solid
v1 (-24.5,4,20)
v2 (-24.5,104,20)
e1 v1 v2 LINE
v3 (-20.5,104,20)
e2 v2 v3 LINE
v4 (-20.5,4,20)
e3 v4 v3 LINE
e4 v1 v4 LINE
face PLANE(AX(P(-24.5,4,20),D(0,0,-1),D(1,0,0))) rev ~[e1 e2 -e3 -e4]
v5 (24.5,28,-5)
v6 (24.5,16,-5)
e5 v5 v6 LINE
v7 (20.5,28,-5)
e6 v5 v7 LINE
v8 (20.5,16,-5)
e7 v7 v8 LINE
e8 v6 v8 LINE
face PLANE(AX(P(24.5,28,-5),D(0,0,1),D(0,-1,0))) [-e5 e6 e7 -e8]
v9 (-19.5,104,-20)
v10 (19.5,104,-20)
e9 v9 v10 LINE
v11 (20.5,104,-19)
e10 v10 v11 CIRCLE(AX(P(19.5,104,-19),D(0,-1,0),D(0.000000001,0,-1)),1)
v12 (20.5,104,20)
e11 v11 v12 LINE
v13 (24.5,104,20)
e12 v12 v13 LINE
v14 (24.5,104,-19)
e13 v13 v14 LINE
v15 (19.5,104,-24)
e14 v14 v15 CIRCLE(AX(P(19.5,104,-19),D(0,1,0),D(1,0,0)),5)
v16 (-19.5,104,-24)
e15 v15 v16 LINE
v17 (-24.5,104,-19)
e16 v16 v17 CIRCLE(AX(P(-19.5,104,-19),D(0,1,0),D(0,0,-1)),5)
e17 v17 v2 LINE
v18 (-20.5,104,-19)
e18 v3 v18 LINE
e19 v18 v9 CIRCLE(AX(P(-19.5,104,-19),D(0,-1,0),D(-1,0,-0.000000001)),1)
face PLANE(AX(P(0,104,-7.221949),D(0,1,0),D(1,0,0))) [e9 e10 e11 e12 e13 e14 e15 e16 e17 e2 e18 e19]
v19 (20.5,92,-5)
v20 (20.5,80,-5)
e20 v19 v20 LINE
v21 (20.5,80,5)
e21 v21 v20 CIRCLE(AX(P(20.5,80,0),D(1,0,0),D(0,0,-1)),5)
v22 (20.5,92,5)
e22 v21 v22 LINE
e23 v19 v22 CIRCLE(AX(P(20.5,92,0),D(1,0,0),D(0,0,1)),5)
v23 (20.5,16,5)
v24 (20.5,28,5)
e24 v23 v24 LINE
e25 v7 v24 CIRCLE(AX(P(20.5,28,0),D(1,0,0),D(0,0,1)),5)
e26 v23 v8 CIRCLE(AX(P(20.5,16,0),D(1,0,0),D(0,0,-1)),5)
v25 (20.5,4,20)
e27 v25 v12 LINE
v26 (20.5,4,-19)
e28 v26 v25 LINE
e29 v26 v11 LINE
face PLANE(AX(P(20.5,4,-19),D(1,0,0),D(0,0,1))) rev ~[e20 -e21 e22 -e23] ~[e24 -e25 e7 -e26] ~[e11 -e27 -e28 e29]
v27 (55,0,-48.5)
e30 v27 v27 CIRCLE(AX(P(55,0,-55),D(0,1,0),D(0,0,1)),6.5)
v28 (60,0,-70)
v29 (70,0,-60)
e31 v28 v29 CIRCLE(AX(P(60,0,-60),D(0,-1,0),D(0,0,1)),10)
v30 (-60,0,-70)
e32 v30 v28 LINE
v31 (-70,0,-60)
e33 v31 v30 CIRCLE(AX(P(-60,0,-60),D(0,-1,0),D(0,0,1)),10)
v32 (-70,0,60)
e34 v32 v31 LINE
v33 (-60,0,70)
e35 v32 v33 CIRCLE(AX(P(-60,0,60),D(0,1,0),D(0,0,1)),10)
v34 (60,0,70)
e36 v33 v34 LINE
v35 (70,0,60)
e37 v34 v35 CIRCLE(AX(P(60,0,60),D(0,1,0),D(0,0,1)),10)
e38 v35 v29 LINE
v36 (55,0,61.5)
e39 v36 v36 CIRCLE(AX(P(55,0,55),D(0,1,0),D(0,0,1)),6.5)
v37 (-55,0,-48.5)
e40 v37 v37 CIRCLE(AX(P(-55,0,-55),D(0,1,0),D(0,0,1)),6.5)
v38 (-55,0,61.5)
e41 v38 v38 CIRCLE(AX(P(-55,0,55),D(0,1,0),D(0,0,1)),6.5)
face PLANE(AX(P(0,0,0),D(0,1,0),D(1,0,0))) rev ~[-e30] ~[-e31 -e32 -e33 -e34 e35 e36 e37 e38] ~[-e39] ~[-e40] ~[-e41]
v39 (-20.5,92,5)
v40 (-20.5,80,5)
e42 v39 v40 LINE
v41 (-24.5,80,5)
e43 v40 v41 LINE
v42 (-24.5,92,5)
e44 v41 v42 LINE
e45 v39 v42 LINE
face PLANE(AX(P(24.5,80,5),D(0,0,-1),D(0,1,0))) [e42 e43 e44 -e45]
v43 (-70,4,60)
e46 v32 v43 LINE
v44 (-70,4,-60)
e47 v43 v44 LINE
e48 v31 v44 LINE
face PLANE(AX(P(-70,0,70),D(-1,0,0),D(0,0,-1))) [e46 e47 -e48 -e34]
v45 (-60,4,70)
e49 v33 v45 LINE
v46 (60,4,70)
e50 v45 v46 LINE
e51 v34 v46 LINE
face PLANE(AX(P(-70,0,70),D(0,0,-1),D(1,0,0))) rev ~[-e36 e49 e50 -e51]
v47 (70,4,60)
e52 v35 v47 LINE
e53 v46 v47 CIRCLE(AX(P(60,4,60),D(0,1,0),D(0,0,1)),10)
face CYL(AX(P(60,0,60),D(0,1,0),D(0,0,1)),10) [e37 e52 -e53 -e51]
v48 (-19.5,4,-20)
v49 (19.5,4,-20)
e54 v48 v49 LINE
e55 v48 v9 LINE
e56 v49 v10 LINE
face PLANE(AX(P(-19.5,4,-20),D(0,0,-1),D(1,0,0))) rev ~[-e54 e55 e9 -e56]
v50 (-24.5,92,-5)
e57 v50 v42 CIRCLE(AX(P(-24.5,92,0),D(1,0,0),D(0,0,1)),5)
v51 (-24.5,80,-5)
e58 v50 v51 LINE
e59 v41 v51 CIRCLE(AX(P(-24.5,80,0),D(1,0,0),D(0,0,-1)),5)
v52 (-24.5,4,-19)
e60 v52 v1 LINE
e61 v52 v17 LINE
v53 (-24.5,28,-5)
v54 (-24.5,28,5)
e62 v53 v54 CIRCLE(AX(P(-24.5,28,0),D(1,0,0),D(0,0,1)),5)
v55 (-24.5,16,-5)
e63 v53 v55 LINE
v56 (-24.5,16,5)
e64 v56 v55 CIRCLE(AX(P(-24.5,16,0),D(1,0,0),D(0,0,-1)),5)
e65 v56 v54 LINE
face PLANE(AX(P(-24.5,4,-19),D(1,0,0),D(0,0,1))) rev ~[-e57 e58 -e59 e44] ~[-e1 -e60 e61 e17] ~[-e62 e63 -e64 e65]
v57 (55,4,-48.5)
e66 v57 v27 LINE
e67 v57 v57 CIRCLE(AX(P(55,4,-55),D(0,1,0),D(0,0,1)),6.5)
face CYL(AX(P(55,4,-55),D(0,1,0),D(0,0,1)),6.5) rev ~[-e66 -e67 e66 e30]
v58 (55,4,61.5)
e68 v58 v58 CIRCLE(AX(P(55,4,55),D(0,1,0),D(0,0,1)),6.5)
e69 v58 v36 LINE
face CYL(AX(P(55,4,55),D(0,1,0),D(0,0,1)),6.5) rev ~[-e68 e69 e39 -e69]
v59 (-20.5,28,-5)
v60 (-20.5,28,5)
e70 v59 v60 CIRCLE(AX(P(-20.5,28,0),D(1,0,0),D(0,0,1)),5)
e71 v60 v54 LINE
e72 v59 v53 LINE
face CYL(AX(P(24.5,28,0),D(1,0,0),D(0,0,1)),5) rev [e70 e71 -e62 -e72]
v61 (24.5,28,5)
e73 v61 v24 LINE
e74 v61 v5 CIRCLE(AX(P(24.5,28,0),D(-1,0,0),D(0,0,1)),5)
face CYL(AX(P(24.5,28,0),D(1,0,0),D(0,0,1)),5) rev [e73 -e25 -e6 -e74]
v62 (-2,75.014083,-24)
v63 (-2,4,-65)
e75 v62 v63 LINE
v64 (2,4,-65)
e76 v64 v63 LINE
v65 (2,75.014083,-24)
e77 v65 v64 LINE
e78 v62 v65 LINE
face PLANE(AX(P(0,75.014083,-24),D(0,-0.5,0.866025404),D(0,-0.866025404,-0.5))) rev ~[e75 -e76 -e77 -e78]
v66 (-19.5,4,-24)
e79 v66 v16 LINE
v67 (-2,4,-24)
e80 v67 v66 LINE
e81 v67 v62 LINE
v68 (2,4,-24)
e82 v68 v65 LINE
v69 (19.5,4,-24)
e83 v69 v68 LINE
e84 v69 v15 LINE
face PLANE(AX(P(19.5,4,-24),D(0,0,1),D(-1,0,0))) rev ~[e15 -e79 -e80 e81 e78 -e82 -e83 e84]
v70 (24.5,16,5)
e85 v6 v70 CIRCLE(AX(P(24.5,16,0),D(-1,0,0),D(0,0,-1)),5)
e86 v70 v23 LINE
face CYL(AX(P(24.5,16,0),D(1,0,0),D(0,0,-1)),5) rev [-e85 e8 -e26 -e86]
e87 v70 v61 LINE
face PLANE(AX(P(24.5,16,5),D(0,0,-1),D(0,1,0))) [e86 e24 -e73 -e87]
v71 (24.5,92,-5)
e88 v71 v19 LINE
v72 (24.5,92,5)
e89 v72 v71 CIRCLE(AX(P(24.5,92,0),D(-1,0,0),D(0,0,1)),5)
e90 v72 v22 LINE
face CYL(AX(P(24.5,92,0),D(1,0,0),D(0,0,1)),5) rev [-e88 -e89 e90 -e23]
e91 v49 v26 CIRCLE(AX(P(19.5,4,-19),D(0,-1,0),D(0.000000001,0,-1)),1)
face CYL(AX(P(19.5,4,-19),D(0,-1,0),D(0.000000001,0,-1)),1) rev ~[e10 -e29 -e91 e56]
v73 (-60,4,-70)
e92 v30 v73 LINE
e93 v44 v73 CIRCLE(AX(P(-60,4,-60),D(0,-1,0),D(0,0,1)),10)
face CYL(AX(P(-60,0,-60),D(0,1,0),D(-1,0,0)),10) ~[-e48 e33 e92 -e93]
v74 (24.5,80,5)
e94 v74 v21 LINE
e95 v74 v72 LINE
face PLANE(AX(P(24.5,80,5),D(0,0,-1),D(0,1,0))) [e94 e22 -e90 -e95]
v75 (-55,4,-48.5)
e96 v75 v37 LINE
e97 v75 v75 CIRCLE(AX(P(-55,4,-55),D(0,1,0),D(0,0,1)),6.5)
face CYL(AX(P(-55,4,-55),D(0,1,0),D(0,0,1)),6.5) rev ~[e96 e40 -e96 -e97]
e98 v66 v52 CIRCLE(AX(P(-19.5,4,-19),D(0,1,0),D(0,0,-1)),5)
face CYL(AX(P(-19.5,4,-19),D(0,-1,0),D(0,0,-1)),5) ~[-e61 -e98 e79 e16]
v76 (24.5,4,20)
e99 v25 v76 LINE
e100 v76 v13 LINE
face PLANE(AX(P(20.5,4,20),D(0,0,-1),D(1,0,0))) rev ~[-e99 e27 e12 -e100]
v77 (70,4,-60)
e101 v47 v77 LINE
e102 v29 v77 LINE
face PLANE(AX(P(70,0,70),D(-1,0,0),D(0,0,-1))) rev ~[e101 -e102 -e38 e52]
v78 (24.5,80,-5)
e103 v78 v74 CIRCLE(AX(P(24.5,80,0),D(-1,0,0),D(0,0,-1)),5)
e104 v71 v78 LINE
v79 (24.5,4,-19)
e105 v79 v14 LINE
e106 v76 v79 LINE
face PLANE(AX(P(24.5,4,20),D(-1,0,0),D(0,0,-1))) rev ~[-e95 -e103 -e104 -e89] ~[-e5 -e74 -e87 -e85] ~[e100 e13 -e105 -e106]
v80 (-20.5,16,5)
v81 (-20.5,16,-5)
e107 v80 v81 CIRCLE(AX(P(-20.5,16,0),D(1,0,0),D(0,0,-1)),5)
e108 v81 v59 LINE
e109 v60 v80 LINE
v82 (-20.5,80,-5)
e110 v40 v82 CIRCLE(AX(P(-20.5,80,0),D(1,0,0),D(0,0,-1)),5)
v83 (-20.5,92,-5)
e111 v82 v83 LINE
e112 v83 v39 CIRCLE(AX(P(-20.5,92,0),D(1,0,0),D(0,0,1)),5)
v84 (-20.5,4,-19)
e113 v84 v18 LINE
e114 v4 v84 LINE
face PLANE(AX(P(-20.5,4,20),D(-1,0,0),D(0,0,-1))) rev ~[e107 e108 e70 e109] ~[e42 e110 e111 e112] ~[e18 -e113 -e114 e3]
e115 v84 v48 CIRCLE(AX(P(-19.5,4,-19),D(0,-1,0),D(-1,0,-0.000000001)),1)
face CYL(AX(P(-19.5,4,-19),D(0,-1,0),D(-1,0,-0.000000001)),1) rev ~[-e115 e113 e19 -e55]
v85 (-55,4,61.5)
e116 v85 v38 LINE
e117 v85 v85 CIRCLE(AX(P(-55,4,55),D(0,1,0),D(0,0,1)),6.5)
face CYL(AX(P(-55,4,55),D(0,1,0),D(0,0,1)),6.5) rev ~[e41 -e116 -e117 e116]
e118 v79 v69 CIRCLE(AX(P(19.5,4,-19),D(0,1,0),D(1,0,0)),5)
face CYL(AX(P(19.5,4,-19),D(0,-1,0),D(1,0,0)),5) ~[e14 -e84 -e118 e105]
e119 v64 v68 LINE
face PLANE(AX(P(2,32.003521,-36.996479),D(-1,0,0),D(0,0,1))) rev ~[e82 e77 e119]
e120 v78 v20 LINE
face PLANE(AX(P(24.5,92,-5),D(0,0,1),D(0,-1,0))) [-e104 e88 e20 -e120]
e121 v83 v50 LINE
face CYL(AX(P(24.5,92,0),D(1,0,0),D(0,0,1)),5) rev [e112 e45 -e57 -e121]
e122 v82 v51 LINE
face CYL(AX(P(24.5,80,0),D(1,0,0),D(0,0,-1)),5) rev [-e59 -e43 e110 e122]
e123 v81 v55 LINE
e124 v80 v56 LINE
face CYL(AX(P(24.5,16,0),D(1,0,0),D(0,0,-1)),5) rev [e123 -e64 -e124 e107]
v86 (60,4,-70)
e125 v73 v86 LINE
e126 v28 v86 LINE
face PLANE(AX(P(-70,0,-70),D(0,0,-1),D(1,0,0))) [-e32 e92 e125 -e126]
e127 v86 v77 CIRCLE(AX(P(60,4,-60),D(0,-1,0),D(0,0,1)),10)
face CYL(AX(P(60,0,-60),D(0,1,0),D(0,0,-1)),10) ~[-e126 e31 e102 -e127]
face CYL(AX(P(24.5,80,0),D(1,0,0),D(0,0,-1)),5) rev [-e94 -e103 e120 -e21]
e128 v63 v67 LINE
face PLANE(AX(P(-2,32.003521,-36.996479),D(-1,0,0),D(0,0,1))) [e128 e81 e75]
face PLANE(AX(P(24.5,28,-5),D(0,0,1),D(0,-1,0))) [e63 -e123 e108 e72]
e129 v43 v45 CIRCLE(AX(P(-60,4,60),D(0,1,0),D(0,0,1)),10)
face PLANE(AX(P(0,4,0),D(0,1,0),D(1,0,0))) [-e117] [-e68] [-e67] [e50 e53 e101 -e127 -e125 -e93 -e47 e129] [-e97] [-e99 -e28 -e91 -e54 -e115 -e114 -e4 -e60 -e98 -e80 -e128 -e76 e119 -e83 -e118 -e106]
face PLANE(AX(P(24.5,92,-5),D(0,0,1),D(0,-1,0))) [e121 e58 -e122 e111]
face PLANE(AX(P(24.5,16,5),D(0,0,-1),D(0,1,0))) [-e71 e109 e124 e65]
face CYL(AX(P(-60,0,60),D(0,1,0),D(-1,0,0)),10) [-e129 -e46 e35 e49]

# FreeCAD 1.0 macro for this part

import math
import FreeCAD as App
import Part
import Sketcher

V = App.Vector
Q = App.Units.Quantity


def edges_at(feature, points):
    """Names of the edges that pass closest to the given points."""
    edges = feature.Shape.Edges
    near = lambda p: min(range(len(edges)), key=lambda i: edges[i].distToShape(Part.Vertex(*p))[0])
    return sorted({f"Edge{near(p) + 1}" for p in points})

doc = App.newDocument("Part")
body = doc.addObject("PartDesign::Body", "Body")

# Sketch on XZ plane
sketch1 = body.newObject("Sketcher::SketchObject", "Sketch")
sketch1.AttachmentSupport = (doc.getObject("XZ_Plane"), [""])
sketch1.MapMode = "FlatFace"
sketch1.addGeometry(Part.LineSegment(V(-70, -70, 0), V(-70, 70, 0)), False)
sketch1.addGeometry(Part.LineSegment(V(-70, 70, 0), V(70, 70, 0)), False)
sketch1.addGeometry(Part.LineSegment(V(70, 70, 0), V(70, -70, 0)), False)
sketch1.addGeometry(Part.LineSegment(V(70, -70, 0), V(-70, -70, 0)), False)
sketch1.addConstraint(Sketcher.Constraint("Coincident", 0, 2, 1, 1))
sketch1.addConstraint(Sketcher.Constraint("Coincident", 1, 2, 2, 1))
sketch1.addConstraint(Sketcher.Constraint("Coincident", 2, 2, 3, 1))
sketch1.addConstraint(Sketcher.Constraint("Coincident", 3, 2, 0, 1))
sketch1.addConstraint(Sketcher.Constraint("Vertical", 0))
sketch1.addConstraint(Sketcher.Constraint("Horizontal", 1))
sketch1.addConstraint(Sketcher.Constraint("Vertical", 2))
sketch1.addConstraint(Sketcher.Constraint("Horizontal", 3))
sketch1.addConstraint(Sketcher.Constraint("Symmetric", 0, 2, 2, 2, -1, 1))
sketch1.addConstraint(Sketcher.Constraint("Equal", 3, 0))
sketch1.addConstraint(Sketcher.Constraint("DistanceX", 1, 1, 1, 2, Q("140 mm")))
pad1 = body.newObject("PartDesign::Pad", "Pad")
pad1.Profile = sketch1
pad1.Length = 4
pad1.Reversed = True

# Sketch on XZ plane
sketch2 = body.newObject("Sketcher::SketchObject", "Sketch001")
sketch2.AttachmentSupport = (doc.getObject("XZ_Plane"), [""])
sketch2.MapMode = "FlatFace"
sketch2.AttachmentOffset = App.Placement(V(0, 0, -4), App.Rotation())
sketch2.addGeometry(Part.LineSegment(V(-20.5, 20, 0), V(-20.5, -19, 0)), False)
sketch2.addGeometry(Part.ArcOfCircle(Part.Circle(V(-19.5, -19, 0), V(0, 0, 1), 1), math.radians(-180), math.radians(-90)), False)
sketch2.addGeometry(Part.LineSegment(V(-19.5, -20, 0), V(19.5, -20, 0)), False)
sketch2.addGeometry(Part.ArcOfCircle(Part.Circle(V(19.5, -19, 0), V(0, 0, 1), 1), math.radians(-90), math.radians(0)), False)
sketch2.addGeometry(Part.LineSegment(V(20.5, -19, 0), V(20.5, 20, 0)), False)
sketch2.addGeometry(Part.LineSegment(V(20.5, 20, 0), V(24.5, 20, 0)), False)
sketch2.addGeometry(Part.LineSegment(V(24.5, 20, 0), V(24.5, -19, 0)), False)
sketch2.addGeometry(Part.ArcOfCircle(Part.Circle(V(19.5, -19, 0), V(0, 0, 1), 5), math.radians(-90), math.radians(0)), False)
sketch2.addGeometry(Part.LineSegment(V(19.5, -24, 0), V(-19.5, -24, 0)), False)
sketch2.addGeometry(Part.ArcOfCircle(Part.Circle(V(-19.5, -19, 0), V(0, 0, 1), 5), math.radians(180), math.radians(270)), False)
sketch2.addGeometry(Part.LineSegment(V(-24.5, -19, 0), V(-24.5, 20, 0)), False)
sketch2.addGeometry(Part.LineSegment(V(-24.5, 20, 0), V(-20.5, 20, 0)), False)
sketch2.addConstraint(Sketcher.Constraint("Tangent", 0, 2, 1, 1))
sketch2.addConstraint(Sketcher.Constraint("Tangent", 1, 2, 2, 1))
sketch2.addConstraint(Sketcher.Constraint("Tangent", 2, 2, 3, 1))
sketch2.addConstraint(Sketcher.Constraint("Tangent", 3, 2, 4, 1))
sketch2.addConstraint(Sketcher.Constraint("Coincident", 4, 2, 5, 1))
sketch2.addConstraint(Sketcher.Constraint("Coincident", 5, 2, 6, 1))
sketch2.addConstraint(Sketcher.Constraint("Tangent", 6, 2, 7, 2))
sketch2.addConstraint(Sketcher.Constraint("Tangent", 7, 1, 8, 1))
sketch2.addConstraint(Sketcher.Constraint("Tangent", 8, 2, 9, 2))
sketch2.addConstraint(Sketcher.Constraint("Tangent", 9, 1, 10, 1))
sketch2.addConstraint(Sketcher.Constraint("Coincident", 10, 2, 11, 1))
sketch2.addConstraint(Sketcher.Constraint("Coincident", 11, 2, 0, 1))
sketch2.addConstraint(Sketcher.Constraint("Vertical", 0))
sketch2.addConstraint(Sketcher.Constraint("Horizontal", 2))
sketch2.addConstraint(Sketcher.Constraint("Vertical", 4))
sketch2.addConstraint(Sketcher.Constraint("Horizontal", 5))
sketch2.addConstraint(Sketcher.Constraint("Vertical", 6))
sketch2.addConstraint(Sketcher.Constraint("Horizontal", 8))
sketch2.addConstraint(Sketcher.Constraint("Vertical", 10))
sketch2.addConstraint(Sketcher.Constraint("Horizontal", 11))
sketch2.addConstraint(Sketcher.Constraint("Coincident", 7, 3, 3, 3))
sketch2.addConstraint(Sketcher.Constraint("Coincident", 9, 3, 1, 3))
sketch2.addConstraint(Sketcher.Constraint("Equal", 1, 3))
sketch2.addConstraint(Sketcher.Constraint("Symmetric", 5, 2, 10, 2, -2))
sketch2.addConstraint(Sketcher.Constraint("Equal", 8, 0))
sketch2.addConstraint(Sketcher.Constraint("Radius", 1, Q("1 mm")))
sketch2.addConstraint(Sketcher.Constraint("Radius", 7, Q("5 mm")))
sketch2.addConstraint(Sketcher.Constraint("DistanceX", 2, 1, 2, 2, Q("39 mm")))
sketch2.addConstraint(Sketcher.Constraint("DistanceY", 1, 3, -1, 1, Q("19 mm")))
pad2 = body.newObject("PartDesign::Pad", "Pad001")
pad2.Profile = sketch2
pad2.Length = 100
pad2.Reversed = True

# Sketch on YZ plane
sketch3 = body.newObject("Sketcher::SketchObject", "Sketch002")
sketch3.AttachmentSupport = (doc.getObject("YZ_Plane"), [""])
sketch3.MapMode = "FlatFace"
sketch3.addGeometry(Part.LineSegment(V(4, -65, 0), V(75.014083, -24, 0)), False)
sketch3.addGeometry(Part.LineSegment(V(75.014083, -24, 0), V(4, -24, 0)), False)
sketch3.addGeometry(Part.LineSegment(V(4, -24, 0), V(4, -65, 0)), False)
sketch3.addConstraint(Sketcher.Constraint("Coincident", 0, 2, 1, 1))
sketch3.addConstraint(Sketcher.Constraint("Coincident", 1, 2, 2, 1))
sketch3.addConstraint(Sketcher.Constraint("Coincident", 2, 2, 0, 1))
sketch3.addConstraint(Sketcher.Constraint("Horizontal", 1))
sketch3.addConstraint(Sketcher.Constraint("Vertical", 2))
sketch3.addConstraint(Sketcher.Constraint("DistanceY", 2, 2, 2, 1, Q("41 mm")))
sketch3.addConstraint(Sketcher.Constraint("Angle", 0, Q("30 deg")))
sketch3.addConstraint(Sketcher.Constraint("DistanceY", 0, 2, -1, 1, Q("24 mm")))
sketch3.addConstraint(Sketcher.Constraint("DistanceX", -1, 1, 1, 2, Q("4 mm")))
pad3 = body.newObject("PartDesign::Pad", "Pad002")
pad3.Profile = sketch3
pad3.Length = 4
pad3.Midplane = True

# Sketch on YZ plane
sketch4 = body.newObject("Sketcher::SketchObject", "Sketch003")
sketch4.AttachmentSupport = (doc.getObject("YZ_Plane"), [""])
sketch4.MapMode = "FlatFace"
sketch4.AttachmentOffset = App.Placement(V(0, 0, 24.5), App.Rotation())
sketch4.addGeometry(Part.LineSegment(V(80, -5, 0), V(92, -5, 0)), False)
sketch4.addGeometry(Part.ArcOfCircle(Part.Circle(V(92, 0, 0), V(0, 0, 1), 5), math.radians(-90), math.radians(90)), False)
sketch4.addGeometry(Part.LineSegment(V(92, 5, 0), V(80, 5, 0)), False)
sketch4.addGeometry(Part.ArcOfCircle(Part.Circle(V(80, 0, 0), V(0, 0, 1), 5), math.radians(90), math.radians(270)), False)
sketch4.addGeometry(Part.LineSegment(V(16, -5, 0), V(28, -5, 0)), False)
sketch4.addGeometry(Part.ArcOfCircle(Part.Circle(V(28, 0, 0), V(0, 0, 1), 5), math.radians(-90), math.radians(90)), False)
sketch4.addGeometry(Part.LineSegment(V(28, 5, 0), V(16, 5, 0)), False)
sketch4.addGeometry(Part.ArcOfCircle(Part.Circle(V(16, 0, 0), V(0, 0, 1), 5), math.radians(90), math.radians(270)), False)
sketch4.addConstraint(Sketcher.Constraint("Tangent", 0, 2, 1, 1))
sketch4.addConstraint(Sketcher.Constraint("Tangent", 1, 2, 2, 1))
sketch4.addConstraint(Sketcher.Constraint("Tangent", 2, 2, 3, 1))
sketch4.addConstraint(Sketcher.Constraint("Tangent", 3, 2, 0, 1))
sketch4.addConstraint(Sketcher.Constraint("Tangent", 4, 2, 5, 1))
sketch4.addConstraint(Sketcher.Constraint("Tangent", 5, 2, 6, 1))
sketch4.addConstraint(Sketcher.Constraint("Tangent", 6, 2, 7, 1))
sketch4.addConstraint(Sketcher.Constraint("Tangent", 7, 2, 4, 1))
sketch4.addConstraint(Sketcher.Constraint("Horizontal", 0))
sketch4.addConstraint(Sketcher.Constraint("Horizontal", 2))
sketch4.addConstraint(Sketcher.Constraint("Horizontal", 4))
sketch4.addConstraint(Sketcher.Constraint("Horizontal", 6))
sketch4.addConstraint(Sketcher.Constraint("Equal", 3, 5))
sketch4.addConstraint(Sketcher.Constraint("PointOnObject", 1, 3, -1))
sketch4.addConstraint(Sketcher.Constraint("PointOnObject", 5, 3, -1))
sketch4.addConstraint(Sketcher.Constraint("Equal", 2, 4))
sketch4.addConstraint(Sketcher.Constraint("Radius", 1, Q("5 mm")))
sketch4.addConstraint(Sketcher.Constraint("DistanceX", 0, 1, 0, 2, Q("12 mm")))
sketch4.addConstraint(Sketcher.Constraint("DistanceX", -1, 1, 1, 3, Q("92 mm")))
sketch4.addConstraint(Sketcher.Constraint("DistanceX", -1, 1, 5, 3, Q("28 mm")))
pocket1 = body.newObject("PartDesign::Pocket", "Pocket")
pocket1.Profile = sketch4
pocket1.Type = "ThroughAll"

# Sketch on XZ plane
sketch5 = body.newObject("Sketcher::SketchObject", "Sketch004")
sketch5.AttachmentSupport = (doc.getObject("XZ_Plane"), [""])
sketch5.MapMode = "FlatFace"
sketch5.AttachmentOffset = App.Placement(V(0, 0, -4), App.Rotation())
sketch5.addGeometry(Part.Circle(V(-55, -55, 0), V(0, 0, 1), 6.5), False)
sketch5.addGeometry(Part.Circle(V(-55, 55, 0), V(0, 0, 1), 6.5), False)
sketch5.addGeometry(Part.Circle(V(55, -55, 0), V(0, 0, 1), 6.5), False)
sketch5.addGeometry(Part.Circle(V(55, 55, 0), V(0, 0, 1), 6.5), False)
sketch5.addConstraint(Sketcher.Constraint("Equal", 0, 1))
sketch5.addConstraint(Sketcher.Constraint("Equal", 1, 2))
sketch5.addConstraint(Sketcher.Constraint("Equal", 2, 3))
sketch5.addConstraint(Sketcher.Constraint("Symmetric", 1, 3, 2, 3, -1, 1))
sketch5.addConstraint(Sketcher.Constraint("Symmetric", 0, 3, 3, 3, -1, 1))
sketch5.addConstraint(Sketcher.Constraint("Symmetric", 0, 3, 2, 3, -2))
sketch5.addConstraint(Sketcher.Constraint("Diameter", 0, Q("13 mm")))
sketch5.addConstraint(Sketcher.Constraint("DistanceX", 0, 3, -1, 1, Q("55 mm")))
sketch5.addConstraint(Sketcher.Constraint("DistanceY", 0, 3, -1, 1, Q("55 mm")))
pocket2 = body.newObject("PartDesign::Pocket", "Pocket001")
pocket2.Profile = sketch5
pocket2.Type = "ThroughAll"
pocket2.Reversed = True
doc.recompute()

fillet = body.newObject("PartDesign::Fillet", "Fillet")
fillet.Base = (pocket2, edges_at(pocket2, [
    (70, 2, 70),
    (-70, 2, 70),
    (-70, 2, -70),
    (70, 2, -70),
]))
fillet.Radius = 10

doc.recompute()
